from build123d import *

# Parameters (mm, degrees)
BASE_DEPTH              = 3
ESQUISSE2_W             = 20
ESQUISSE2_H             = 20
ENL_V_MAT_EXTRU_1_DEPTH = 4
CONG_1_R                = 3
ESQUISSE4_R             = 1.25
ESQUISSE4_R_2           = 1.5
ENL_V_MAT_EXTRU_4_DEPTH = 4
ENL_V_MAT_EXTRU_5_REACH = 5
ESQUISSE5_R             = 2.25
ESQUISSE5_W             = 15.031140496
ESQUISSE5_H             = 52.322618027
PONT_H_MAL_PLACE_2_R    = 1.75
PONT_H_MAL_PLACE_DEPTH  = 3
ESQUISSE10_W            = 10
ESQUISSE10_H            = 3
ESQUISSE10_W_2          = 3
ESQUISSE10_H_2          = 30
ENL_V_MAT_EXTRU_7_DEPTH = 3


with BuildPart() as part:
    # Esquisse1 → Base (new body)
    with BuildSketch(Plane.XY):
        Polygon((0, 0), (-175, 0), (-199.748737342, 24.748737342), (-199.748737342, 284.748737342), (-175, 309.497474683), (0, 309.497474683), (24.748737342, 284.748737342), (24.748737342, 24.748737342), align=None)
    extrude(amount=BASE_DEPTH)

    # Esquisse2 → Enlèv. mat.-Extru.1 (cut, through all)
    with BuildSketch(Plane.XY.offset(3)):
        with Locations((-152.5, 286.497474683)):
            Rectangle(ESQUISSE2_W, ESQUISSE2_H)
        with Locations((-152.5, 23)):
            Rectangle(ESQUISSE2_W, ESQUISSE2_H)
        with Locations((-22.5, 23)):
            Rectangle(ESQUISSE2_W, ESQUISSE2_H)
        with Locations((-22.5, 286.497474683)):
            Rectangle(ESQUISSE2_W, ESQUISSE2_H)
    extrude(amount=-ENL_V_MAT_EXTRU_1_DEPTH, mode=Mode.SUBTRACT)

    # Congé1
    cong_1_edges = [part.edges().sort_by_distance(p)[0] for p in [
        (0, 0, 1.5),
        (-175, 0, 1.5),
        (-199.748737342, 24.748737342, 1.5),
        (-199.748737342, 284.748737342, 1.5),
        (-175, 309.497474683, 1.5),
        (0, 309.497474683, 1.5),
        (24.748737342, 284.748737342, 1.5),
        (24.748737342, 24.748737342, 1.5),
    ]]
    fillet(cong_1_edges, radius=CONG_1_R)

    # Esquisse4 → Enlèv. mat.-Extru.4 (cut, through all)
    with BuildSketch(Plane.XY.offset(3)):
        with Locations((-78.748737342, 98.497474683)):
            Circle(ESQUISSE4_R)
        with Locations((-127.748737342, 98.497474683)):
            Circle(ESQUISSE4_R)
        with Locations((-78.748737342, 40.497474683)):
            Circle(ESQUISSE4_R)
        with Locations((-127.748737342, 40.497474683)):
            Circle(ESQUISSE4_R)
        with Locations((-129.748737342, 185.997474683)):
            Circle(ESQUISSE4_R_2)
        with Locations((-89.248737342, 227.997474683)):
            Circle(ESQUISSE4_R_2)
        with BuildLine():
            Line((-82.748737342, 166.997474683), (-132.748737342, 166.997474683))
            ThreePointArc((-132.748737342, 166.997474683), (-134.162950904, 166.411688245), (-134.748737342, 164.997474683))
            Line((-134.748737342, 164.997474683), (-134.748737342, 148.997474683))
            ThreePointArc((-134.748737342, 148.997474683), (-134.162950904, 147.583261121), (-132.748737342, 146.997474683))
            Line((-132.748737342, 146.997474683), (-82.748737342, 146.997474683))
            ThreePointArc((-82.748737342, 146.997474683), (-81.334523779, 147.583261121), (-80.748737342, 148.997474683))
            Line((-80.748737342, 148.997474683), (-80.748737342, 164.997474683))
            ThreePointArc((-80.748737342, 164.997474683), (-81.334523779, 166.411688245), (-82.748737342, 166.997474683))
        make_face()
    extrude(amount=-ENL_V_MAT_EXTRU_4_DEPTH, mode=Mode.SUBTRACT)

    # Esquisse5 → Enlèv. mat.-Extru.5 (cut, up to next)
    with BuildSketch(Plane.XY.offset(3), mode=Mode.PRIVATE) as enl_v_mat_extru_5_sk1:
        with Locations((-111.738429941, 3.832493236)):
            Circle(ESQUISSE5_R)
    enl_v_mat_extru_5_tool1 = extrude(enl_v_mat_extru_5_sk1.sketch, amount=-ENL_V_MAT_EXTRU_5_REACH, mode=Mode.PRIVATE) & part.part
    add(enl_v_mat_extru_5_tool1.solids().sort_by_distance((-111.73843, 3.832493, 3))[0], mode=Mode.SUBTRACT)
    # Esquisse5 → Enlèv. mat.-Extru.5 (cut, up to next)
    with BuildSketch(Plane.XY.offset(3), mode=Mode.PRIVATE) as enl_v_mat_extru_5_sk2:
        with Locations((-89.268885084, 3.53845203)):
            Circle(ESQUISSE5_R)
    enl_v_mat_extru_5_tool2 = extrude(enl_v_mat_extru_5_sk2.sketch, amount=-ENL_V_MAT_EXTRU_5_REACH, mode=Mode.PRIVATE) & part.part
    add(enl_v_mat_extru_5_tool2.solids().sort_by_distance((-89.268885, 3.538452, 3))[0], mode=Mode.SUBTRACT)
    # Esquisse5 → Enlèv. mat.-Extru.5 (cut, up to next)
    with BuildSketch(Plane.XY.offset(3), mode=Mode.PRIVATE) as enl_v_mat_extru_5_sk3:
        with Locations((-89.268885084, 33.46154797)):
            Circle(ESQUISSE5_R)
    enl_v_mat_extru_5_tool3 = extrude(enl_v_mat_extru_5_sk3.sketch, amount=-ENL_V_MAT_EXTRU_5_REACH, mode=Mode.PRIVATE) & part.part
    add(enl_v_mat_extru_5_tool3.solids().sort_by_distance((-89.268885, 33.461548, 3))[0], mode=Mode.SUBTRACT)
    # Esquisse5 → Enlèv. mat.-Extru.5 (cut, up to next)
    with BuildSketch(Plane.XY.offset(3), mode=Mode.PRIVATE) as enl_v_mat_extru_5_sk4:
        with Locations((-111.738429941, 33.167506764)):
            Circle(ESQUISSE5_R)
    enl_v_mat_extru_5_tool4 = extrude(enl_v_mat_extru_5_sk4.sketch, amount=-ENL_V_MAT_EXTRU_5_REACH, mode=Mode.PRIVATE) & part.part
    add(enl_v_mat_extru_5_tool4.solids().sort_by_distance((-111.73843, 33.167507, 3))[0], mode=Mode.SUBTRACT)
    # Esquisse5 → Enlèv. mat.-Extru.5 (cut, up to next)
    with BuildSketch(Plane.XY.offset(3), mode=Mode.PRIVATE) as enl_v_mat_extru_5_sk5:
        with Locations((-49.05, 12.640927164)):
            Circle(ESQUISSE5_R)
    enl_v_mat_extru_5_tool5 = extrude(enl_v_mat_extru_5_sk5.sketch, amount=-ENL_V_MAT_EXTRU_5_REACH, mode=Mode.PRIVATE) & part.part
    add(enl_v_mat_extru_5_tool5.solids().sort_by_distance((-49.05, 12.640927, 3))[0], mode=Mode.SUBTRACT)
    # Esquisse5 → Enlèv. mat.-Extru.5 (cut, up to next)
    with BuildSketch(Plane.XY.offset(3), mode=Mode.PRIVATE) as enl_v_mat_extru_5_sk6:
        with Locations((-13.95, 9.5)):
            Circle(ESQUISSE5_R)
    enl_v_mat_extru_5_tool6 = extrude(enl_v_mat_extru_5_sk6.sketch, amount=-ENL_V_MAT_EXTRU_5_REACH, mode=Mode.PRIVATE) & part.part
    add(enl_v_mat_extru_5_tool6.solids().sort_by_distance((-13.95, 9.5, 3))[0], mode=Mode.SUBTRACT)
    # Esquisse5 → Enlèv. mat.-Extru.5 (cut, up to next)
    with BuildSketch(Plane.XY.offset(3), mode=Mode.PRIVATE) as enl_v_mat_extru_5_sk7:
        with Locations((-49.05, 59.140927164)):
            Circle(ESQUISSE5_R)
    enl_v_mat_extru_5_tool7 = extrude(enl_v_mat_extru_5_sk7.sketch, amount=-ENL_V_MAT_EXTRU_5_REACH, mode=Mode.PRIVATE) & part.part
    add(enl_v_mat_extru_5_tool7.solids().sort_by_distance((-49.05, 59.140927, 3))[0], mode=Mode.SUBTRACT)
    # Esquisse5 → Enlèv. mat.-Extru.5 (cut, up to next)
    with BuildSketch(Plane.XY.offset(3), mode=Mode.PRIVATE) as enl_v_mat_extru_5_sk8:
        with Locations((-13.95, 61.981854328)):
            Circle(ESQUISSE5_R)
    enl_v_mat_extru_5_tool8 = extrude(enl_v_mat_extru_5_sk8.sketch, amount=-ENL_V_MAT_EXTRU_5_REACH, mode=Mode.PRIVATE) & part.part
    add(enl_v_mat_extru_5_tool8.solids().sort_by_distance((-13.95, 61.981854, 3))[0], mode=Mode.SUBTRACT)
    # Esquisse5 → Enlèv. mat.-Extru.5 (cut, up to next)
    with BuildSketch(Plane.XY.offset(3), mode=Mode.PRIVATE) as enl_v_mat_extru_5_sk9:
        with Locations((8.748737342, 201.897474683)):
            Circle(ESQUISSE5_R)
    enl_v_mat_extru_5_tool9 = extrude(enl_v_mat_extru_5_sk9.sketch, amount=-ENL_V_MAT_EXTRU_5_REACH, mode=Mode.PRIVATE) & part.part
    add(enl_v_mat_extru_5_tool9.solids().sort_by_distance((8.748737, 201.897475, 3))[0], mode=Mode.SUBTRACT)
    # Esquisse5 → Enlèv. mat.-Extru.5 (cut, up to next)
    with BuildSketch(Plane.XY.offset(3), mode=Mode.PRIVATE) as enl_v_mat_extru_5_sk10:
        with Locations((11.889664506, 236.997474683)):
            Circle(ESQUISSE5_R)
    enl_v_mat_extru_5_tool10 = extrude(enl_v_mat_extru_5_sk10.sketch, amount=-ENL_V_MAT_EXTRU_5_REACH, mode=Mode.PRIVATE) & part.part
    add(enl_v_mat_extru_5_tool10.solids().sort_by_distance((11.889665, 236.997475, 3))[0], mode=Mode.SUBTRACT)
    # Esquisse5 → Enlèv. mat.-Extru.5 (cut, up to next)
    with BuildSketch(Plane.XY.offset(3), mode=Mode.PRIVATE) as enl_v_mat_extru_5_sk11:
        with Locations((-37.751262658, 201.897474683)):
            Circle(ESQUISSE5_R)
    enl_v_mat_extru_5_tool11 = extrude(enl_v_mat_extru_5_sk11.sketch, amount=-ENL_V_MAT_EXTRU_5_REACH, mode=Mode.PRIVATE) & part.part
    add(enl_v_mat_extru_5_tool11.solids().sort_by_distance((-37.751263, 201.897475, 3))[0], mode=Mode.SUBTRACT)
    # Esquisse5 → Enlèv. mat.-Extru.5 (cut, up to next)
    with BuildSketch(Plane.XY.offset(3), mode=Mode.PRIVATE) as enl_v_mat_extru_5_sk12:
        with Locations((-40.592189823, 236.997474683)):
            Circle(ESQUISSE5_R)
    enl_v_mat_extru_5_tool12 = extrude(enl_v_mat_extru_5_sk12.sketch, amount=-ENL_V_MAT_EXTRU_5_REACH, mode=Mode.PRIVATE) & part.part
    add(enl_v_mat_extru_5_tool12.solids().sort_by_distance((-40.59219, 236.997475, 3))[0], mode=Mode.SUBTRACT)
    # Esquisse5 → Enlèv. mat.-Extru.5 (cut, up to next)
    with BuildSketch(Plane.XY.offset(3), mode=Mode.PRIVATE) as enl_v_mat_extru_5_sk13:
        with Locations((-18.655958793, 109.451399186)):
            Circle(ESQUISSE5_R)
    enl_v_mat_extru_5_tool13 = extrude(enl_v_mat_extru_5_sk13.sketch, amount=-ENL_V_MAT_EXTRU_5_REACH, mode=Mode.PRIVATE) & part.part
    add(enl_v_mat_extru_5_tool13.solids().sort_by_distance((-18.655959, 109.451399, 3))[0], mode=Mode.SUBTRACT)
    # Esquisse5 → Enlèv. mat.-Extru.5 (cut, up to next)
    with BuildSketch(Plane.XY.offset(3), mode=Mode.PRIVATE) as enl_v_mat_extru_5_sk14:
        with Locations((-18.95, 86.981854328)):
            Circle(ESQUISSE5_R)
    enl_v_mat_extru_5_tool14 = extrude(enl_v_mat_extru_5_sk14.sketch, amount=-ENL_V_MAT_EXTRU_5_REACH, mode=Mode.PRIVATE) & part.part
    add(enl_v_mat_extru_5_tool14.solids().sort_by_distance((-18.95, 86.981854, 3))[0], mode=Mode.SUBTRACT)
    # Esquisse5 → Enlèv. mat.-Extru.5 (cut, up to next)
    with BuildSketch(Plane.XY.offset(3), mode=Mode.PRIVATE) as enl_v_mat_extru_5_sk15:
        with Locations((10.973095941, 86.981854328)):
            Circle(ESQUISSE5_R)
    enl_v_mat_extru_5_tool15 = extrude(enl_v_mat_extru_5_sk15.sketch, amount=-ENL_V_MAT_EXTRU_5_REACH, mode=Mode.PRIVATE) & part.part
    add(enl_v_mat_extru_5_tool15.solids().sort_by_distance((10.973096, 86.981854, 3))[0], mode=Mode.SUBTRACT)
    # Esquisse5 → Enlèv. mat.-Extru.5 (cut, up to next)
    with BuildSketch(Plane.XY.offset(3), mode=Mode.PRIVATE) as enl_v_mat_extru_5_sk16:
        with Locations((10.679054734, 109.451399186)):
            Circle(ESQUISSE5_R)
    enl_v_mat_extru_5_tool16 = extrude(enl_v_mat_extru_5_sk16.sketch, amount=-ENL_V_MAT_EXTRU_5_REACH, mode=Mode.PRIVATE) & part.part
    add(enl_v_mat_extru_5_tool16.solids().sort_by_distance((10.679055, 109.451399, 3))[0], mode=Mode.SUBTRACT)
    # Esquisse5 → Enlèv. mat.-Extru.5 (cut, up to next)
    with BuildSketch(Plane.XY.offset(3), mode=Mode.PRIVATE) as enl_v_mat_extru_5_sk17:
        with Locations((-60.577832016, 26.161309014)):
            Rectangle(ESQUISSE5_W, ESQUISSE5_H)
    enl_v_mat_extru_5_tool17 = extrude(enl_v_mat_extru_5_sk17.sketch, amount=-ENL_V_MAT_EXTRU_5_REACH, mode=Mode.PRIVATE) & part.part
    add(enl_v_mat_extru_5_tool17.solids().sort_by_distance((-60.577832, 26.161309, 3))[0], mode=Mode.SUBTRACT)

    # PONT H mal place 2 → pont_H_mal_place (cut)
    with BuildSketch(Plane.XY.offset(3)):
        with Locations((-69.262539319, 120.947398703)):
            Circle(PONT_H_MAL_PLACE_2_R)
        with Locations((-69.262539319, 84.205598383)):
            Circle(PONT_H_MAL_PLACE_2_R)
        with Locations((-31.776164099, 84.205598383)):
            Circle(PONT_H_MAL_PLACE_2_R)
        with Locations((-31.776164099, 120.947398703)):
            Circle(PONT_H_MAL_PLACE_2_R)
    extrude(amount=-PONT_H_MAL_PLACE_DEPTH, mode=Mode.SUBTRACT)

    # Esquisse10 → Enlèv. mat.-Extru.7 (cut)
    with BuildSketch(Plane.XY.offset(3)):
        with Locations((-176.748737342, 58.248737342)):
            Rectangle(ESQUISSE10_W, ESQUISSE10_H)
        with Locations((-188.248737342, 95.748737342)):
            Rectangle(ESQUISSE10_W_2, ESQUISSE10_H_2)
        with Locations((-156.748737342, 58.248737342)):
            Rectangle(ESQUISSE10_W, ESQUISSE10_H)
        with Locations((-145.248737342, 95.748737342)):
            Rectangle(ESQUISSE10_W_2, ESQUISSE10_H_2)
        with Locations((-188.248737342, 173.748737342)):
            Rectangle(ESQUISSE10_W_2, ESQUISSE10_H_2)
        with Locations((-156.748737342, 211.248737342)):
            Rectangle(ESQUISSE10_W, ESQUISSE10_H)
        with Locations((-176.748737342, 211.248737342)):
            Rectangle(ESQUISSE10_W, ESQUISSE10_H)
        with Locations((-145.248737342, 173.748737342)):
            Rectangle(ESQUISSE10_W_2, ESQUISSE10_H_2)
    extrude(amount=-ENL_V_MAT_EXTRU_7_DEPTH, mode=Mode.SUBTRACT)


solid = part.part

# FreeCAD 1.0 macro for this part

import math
import FreeCAD as App
import Part
import Sketcher
from FreeCAD import Vector
Q = App.Units.Quantity


def edges_at(feature, points):
    """Names of the edges that pass closest to the given points."""
    edges = feature.Shape.Edges
    near = lambda p: min(range(len(edges)), key=lambda i: edges[i].distToShape(Part.Vertex(*p))[0])
    return sorted({f"Edge{near(p) + 1}" for p in points})

doc = App.newDocument("Part")
params = doc.addObject("Spreadsheet::Sheet", "Params")
for row, (alias, value) in enumerate([
    ("sketch1_width", "175 mm"),
    ("sketch1_height", "260 mm"),
    ("sketch1_length", "35 mm"),
    ("pad1_length", "3 mm"),
    ("sketch2_width", "20 mm"),
    ("fillet_radius", "3 mm"),
    ("sketch3_diameter", "3 mm"),
    ("sketch3_radius", "2 mm"),
    ("sketch3_diameter2", "2.5 mm"),
    ("sketch3_width", "50 mm"),
    ("sketch3_height", "16 mm"),
    ("sketch4_diameter", "4.5 mm"),
    ("sketch5_diameter", "4.5 mm"),
    ("sketch6_diameter", "4.5 mm"),
    ("sketch7_diameter", "4.5 mm"),
    ("sketch8_diameter", "4.5 mm"),
    ("sketch9_diameter", "4.5 mm"),
    ("sketch10_diameter", "4.5 mm"),
    ("sketch11_diameter", "4.5 mm"),
    ("sketch12_diameter", "4.5 mm"),
    ("sketch13_diameter", "4.5 mm"),
    ("sketch14_diameter", "4.5 mm"),
    ("sketch15_diameter", "4.5 mm"),
    ("sketch16_diameter", "4.5 mm"),
    ("sketch17_diameter", "4.5 mm"),
    ("sketch18_diameter", "4.5 mm"),
    ("sketch19_diameter", "4.5 mm"),
    ("sketch21_diameter", "3.5 mm"),
    ("pocket20_length", "3 mm"),
    ("sketch22_width", "10 mm"),
    ("sketch22_width2", "3 mm"),
    ("sketch22_height", "30 mm"),
    ("pocket21_length", "3 mm"),
], start=1):
    params.set(f"A{row}", alias)
    params.set(f"B{row}", "=" + value)
    params.setAlias(f"B{row}", alias)

body = doc.addObject("PartDesign::Body", "Body")

# Sketch on XY plane
sketch1 = body.newObject("Sketcher::SketchObject", "Sketch")
sketch1.AttachmentSupport = (doc.getObject("XY_Plane"), [""])
sketch1.MapMode = "FlatFace"
sketch1.addGeometry([
    Part.LineSegment(Vector(-175, 0, 0), Vector(0, 0, 0)),  # 0
    Part.LineSegment(Vector(0, 0, 0), Vector(25, 25, 0)),  # 1
    Part.LineSegment(Vector(25, 25, 0), Vector(25, 285, 0)),  # 2
    Part.LineSegment(Vector(25, 285, 0), Vector(0, 309, 0)),  # 3
    Part.LineSegment(Vector(0, 309, 0), Vector(-175, 309, 0)),  # 4
    Part.LineSegment(Vector(-175, 309, 0), Vector(-200, 285, 0)),  # 5
    Part.LineSegment(Vector(-200, 285, 0), Vector(-200, 25, 0)),  # 6
    Part.LineSegment(Vector(-200, 25, 0), Vector(-175, 0, 0)),  # 7
], False)
sketch1.addConstraint([
    Sketcher.Constraint("Coincident", 0, 2, 1, 1),
    Sketcher.Constraint("Coincident", 1, 2, 2, 1),
    Sketcher.Constraint("Coincident", 2, 2, 3, 1),
    Sketcher.Constraint("Coincident", 3, 2, 4, 1),
    Sketcher.Constraint("Coincident", 4, 2, 5, 1),
    Sketcher.Constraint("Coincident", 5, 2, 6, 1),
    Sketcher.Constraint("Coincident", 6, 2, 7, 1),
    Sketcher.Constraint("Coincident", 7, 2, 0, 1),
    Sketcher.Constraint("Horizontal", 0),
    Sketcher.Constraint("Vertical", 2),
    Sketcher.Constraint("Horizontal", 4),
    Sketcher.Constraint("Vertical", 6),
    Sketcher.Constraint("Coincident", 0, 2, -1, 1),
    Sketcher.Constraint("PointOnObject", 3, 2, -2),
    Sketcher.Constraint("Perpendicular", 1, 3),
    Sketcher.Constraint("Perpendicular", 3, 5),
    Sketcher.Constraint("Perpendicular", 5, 7),
    Sketcher.Constraint("Horizontal", 2, 2, 5, 2),
    Sketcher.Constraint("Horizontal", 1, 2, 6, 2),
    Sketcher.Constraint("Vertical", 4, 2, 7, 2),
    Sketcher.Constraint("DistanceX", 0, 1, 0, 2, Q("175 mm")),
    Sketcher.Constraint("DistanceY", 2, 1, 2, 2, Q("260 mm")),
    Sketcher.Constraint("Distance", 1, Q("35 mm")),
])
sketch1.setExpression("Constraints[20]", "Params.sketch1_width")
sketch1.setExpression("Constraints[21]", "Params.sketch1_height")
sketch1.setExpression("Constraints[22]", "Params.sketch1_length")
pad1 = body.newObject("PartDesign::Pad", "Pad")
pad1.Profile = sketch1
pad1.setExpression("Length", "Params.pad1_length")

# Sketch on XY plane
sketch2 = body.newObject("Sketcher::SketchObject", "Sketch001")
sketch2.AttachmentSupport = (doc.getObject("XY_Plane"), [""])
sketch2.MapMode = "FlatFace"
sketch2.AttachmentOffset = App.Placement(Vector(0, 0, 3), App.Rotation())
sketch2.addGeometry([
    Part.LineSegment(Vector(-162, 296, 0), Vector(-162, 276, 0)),  # 0
    Part.LineSegment(Vector(-162, 276, 0), Vector(-142, 276, 0)),  # 1
    Part.LineSegment(Vector(-142, 276, 0), Vector(-142, 296, 0)),  # 2
    Part.LineSegment(Vector(-142, 296, 0), Vector(-162, 296, 0)),  # 3
    Part.LineSegment(Vector(-162, 33, 0), Vector(-162, 13, 0)),  # 4
    Part.LineSegment(Vector(-162, 13, 0), Vector(-142, 13, 0)),  # 5
    Part.LineSegment(Vector(-142, 13, 0), Vector(-142, 33, 0)),  # 6
    Part.LineSegment(Vector(-142, 33, 0), Vector(-162, 33, 0)),  # 7
    Part.LineSegment(Vector(-32, 33, 0), Vector(-32, 13, 0)),  # 8
    Part.LineSegment(Vector(-32, 13, 0), Vector(-12, 13, 0)),  # 9
    Part.LineSegment(Vector(-12, 13, 0), Vector(-12, 33, 0)),  # 10
    Part.LineSegment(Vector(-12, 33, 0), Vector(-32, 33, 0)),  # 11
    Part.LineSegment(Vector(-32, 296, 0), Vector(-32, 276, 0)),  # 12
    Part.LineSegment(Vector(-32, 276, 0), Vector(-12, 276, 0)),  # 13
    Part.LineSegment(Vector(-12, 276, 0), Vector(-12, 296, 0)),  # 14
    Part.LineSegment(Vector(-12, 296, 0), Vector(-32, 296, 0)),  # 15
], False)
sketch2.addConstraint([
    Sketcher.Constraint("Coincident", 0, 2, 1, 1),
    Sketcher.Constraint("Coincident", 1, 2, 2, 1),
    Sketcher.Constraint("Coincident", 2, 2, 3, 1),
    Sketcher.Constraint("Coincident", 3, 2, 0, 1),
    Sketcher.Constraint("Coincident", 4, 2, 5, 1),
    Sketcher.Constraint("Coincident", 5, 2, 6, 1),
    Sketcher.Constraint("Coincident", 6, 2, 7, 1),
    Sketcher.Constraint("Coincident", 7, 2, 4, 1),
    Sketcher.Constraint("Coincident", 8, 2, 9, 1),
    Sketcher.Constraint("Coincident", 9, 2, 10, 1),
    Sketcher.Constraint("Coincident", 10, 2, 11, 1),
    Sketcher.Constraint("Coincident", 11, 2, 8, 1),
    Sketcher.Constraint("Coincident", 12, 2, 13, 1),
    Sketcher.Constraint("Coincident", 13, 2, 14, 1),
    Sketcher.Constraint("Coincident", 14, 2, 15, 1),
    Sketcher.Constraint("Coincident", 15, 2, 12, 1),
    Sketcher.Constraint("Vertical", 0),
    Sketcher.Constraint("Horizontal", 1),
    Sketcher.Constraint("Vertical", 2),
    Sketcher.Constraint("Horizontal", 3),
    Sketcher.Constraint("Vertical", 4),
    Sketcher.Constraint("Horizontal", 5),
    Sketcher.Constraint("Vertical", 6),
    Sketcher.Constraint("Horizontal", 7),
    Sketcher.Constraint("Vertical", 8),
    Sketcher.Constraint("Horizontal", 9),
    Sketcher.Constraint("Vertical", 10),
    Sketcher.Constraint("Horizontal", 11),
    Sketcher.Constraint("Vertical", 12),
    Sketcher.Constraint("Horizontal", 13),
    Sketcher.Constraint("Vertical", 14),
    Sketcher.Constraint("Horizontal", 15),
    Sketcher.Constraint("Horizontal", 5, 2, 8, 2),
    Sketcher.Constraint("Horizontal", 7, 2, 10, 2),
    Sketcher.Constraint("Horizontal", 1, 2, 12, 2),
    Sketcher.Constraint("Horizontal", 3, 2, 14, 2),
    Sketcher.Constraint("Vertical", 3, 2, 4, 2),
    Sketcher.Constraint("Vertical", 2, 2, 5, 2),
    Sketcher.Constraint("Vertical", 11, 2, 12, 2),
    Sketcher.Constraint("Vertical", 10, 2, 13, 2),
    Sketcher.Constraint("Equal", 7, 9),
    Sketcher.Constraint("Equal", 15, 0),
    Sketcher.Constraint("Equal", 2, 4),
    Sketcher.Constraint("DistanceX", 1, 1, 1, 2, Q("20 mm")),
    Sketcher.Constraint("DistanceY", -1, 1, 4, 2, Q("13 mm")),
    Sketcher.Constraint("DistanceX", 5, 2, 8, 2, Q("110 mm")),
    Sketcher.Constraint("DistanceX", 0, 2, -1, 1, Q("162.5 mm")),
    Sketcher.Constraint("DistanceY", -1, 1, 0, 2, Q("276.497475 mm")),
])
sketch2.setExpression("Constraints[43]", "Params.sketch2_width")
pocket1 = body.newObject("PartDesign::Pocket", "Pocket")
pocket1.Profile = sketch2
pocket1.Type = "ThroughAll"
doc.recompute()

fillet = body.newObject("PartDesign::Fillet", "Fillet")
fillet.Base = (pocket1, edges_at(pocket1, [
    (0, 0, 1.5),
    (-175, 0, 1.5),
    (-199.749, 24.749, 1.5),
    (-199.749, 284.749, 1.5),
    (-175, 309.497, 1.5),
    (0, 309.497, 1.5),
    (24.749, 284.749, 1.5),
    (24.749, 24.749, 1.5),
]))
fillet.setExpression("Radius", "Params.fillet_radius")

# Sketch on XY plane
sketch3 = body.newObject("Sketcher::SketchObject", "Sketch002")
sketch3.AttachmentSupport = (doc.getObject("XY_Plane"), [""])
sketch3.MapMode = "FlatFace"
sketch3.AttachmentOffset = App.Placement(Vector(0, 0, 3), App.Rotation())
sketch3.addGeometry([
    Part.Circle(Vector(-78.7, 98.5, 0), Vector(0, 0, 1), 1.2),  # 0
    Part.Circle(Vector(-127.7, 98.5, 0), Vector(0, 0, 1), 1.2),  # 1
    Part.Circle(Vector(-78.7, 40.5, 0), Vector(0, 0, 1), 1.2),  # 2
    Part.Circle(Vector(-127.7, 40.5, 0), Vector(0, 0, 1), 1.2),  # 3
    Part.Circle(Vector(-129.7, 186, 0), Vector(0, 0, 1), 1.5),  # 4
    Part.Circle(Vector(-89.2, 228, 0), Vector(0, 0, 1), 1.5),  # 5
    Part.LineSegment(Vector(-82.7, 167, 0), Vector(-132.7, 167, 0)),  # 6
    Part.ArcOfCircle(Part.Circle(Vector(-132.7, 165, 0), Vector(0, 0, 1), 2), math.radians(90), math.radians(180)),  # 7
    Part.LineSegment(Vector(-134.7, 165, 0), Vector(-134.7, 149, 0)),  # 8
    Part.ArcOfCircle(Part.Circle(Vector(-132.7, 149, 0), Vector(0, 0, 1), 2), math.radians(-180), math.radians(-90)),  # 9
    Part.LineSegment(Vector(-132.7, 147, 0), Vector(-82.7, 147, 0)),  # 10
    Part.ArcOfCircle(Part.Circle(Vector(-82.7, 149, 0), Vector(0, 0, 1), 2), math.radians(-90), math.radians(0)),  # 11
    Part.LineSegment(Vector(-80.7, 149, 0), Vector(-80.7, 165, 0)),  # 12
    Part.ArcOfCircle(Part.Circle(Vector(-82.7, 165, 0), Vector(0, 0, 1), 2), math.radians(0), math.radians(90)),  # 13
], False)
sketch3.addConstraint([
    Sketcher.Constraint("Tangent", 6, 2, 7, 1),
    Sketcher.Constraint("Tangent", 7, 2, 8, 1),
    Sketcher.Constraint("Tangent", 8, 2, 9, 1),
    Sketcher.Constraint("Tangent", 9, 2, 10, 1),
    Sketcher.Constraint("Tangent", 10, 2, 11, 1),
    Sketcher.Constraint("Tangent", 11, 2, 12, 1),
    Sketcher.Constraint("Tangent", 12, 2, 13, 1),
    Sketcher.Constraint("Tangent", 13, 2, 6, 1),
    Sketcher.Constraint("Horizontal", 6),
    Sketcher.Constraint("Vertical", 8),
    Sketcher.Constraint("Horizontal", 10),
    Sketcher.Constraint("Vertical", 12),
    Sketcher.Constraint("Equal", 0, 1),
    Sketcher.Constraint("Equal", 1, 2),
    Sketcher.Constraint("Equal", 2, 3),
    Sketcher.Constraint("Equal", 4, 5),
    Sketcher.Constraint("Equal", 7, 9),
    Sketcher.Constraint("Equal", 9, 11),
    Sketcher.Constraint("Equal", 11, 13),
    Sketcher.Constraint("Horizontal", 0, 3, 1, 3),
    Sketcher.Constraint("Horizontal", 2, 3, 3, 3),
    Sketcher.Constraint("Vertical", 0, 3, 2, 3),
    Sketcher.Constraint("Vertical", 1, 3, 3, 3),
    Sketcher.Constraint("Diameter", 4, Q("3 mm")),
    Sketcher.Constraint("Radius", 7, Q("2 mm")),
    Sketcher.Constraint("Diameter", 0, Q("2.5 mm")),
    Sketcher.Constraint("DistanceX", 6, 2, 6, 1, Q("50 mm")),
    Sketcher.Constraint("DistanceY", 8, 2, 8, 1, Q("16 mm")),
    Sketcher.Constraint("DistanceX", 1, 3, 0, 3, Q("49 mm")),
    Sketcher.Constraint("DistanceY", 2, 3, 0, 3, Q("58 mm")),
    Sketcher.Constraint("DistanceX", 4, 3, 1, 3, Q("2 mm")),
    Sketcher.Constraint("DistanceY", 4, 3, 5, 3, Q("42 mm")),
    Sketcher.Constraint("DistanceX", 7, 3, 4, 3, Q("3 mm")),
    Sketcher.Constraint("DistanceY", 7, 3, 4, 3, Q("21 mm")),
    Sketcher.Constraint("DistanceY", 1, 3, 4, 3, Q("87.5 mm")),
    Sketcher.Constraint("DistanceX", 4, 3, 5, 3, Q("40.5 mm")),
    Sketcher.Constraint("DistanceX", 0, 3, -1, 1, Q("78.748737 mm")),
    Sketcher.Constraint("DistanceY", -1, 1, 0, 3, Q("98.497475 mm")),
])
sketch3.setExpression("Constraints[23]", "Params.sketch3_diameter")
sketch3.setExpression("Constraints[24]", "Params.sketch3_radius")
sketch3.setExpression("Constraints[25]", "Params.sketch3_diameter2")
sketch3.setExpression("Constraints[26]", "Params.sketch3_width")
sketch3.setExpression("Constraints[27]", "Params.sketch3_height")
pocket2 = body.newObject("PartDesign::Pocket", "Pocket001")
pocket2.Profile = sketch3
pocket2.Type = "ThroughAll"

# Sketch on XY plane
sketch4 = body.newObject("Sketcher::SketchObject", "Sketch003")
sketch4.AttachmentSupport = (doc.getObject("XY_Plane"), [""])
sketch4.MapMode = "FlatFace"
sketch4.AttachmentOffset = App.Placement(Vector(0, 0, 3), App.Rotation())
sketch4.addGeometry(Part.Circle(Vector(-111.7, 3.8, 0), Vector(0, 0, 1), 2.2), False)
sketch4.addConstraint([
    Sketcher.Constraint("Diameter", 0, Q("4.5 mm")),
    Sketcher.Constraint("DistanceX", 0, 3, -1, 1, Q("111.73843 mm")),
    Sketcher.Constraint("DistanceY", -1, 1, 0, 3, Q("3.832493 mm")),
])
sketch4.setExpression("Constraints[0]", "Params.sketch4_diameter")
pocket3 = body.newObject("PartDesign::Pocket", "Pocket002")
pocket3.Profile = sketch4
pocket3.Type = "UpToFirst"

# Sketch on XY plane
sketch5 = body.newObject("Sketcher::SketchObject", "Sketch004")
sketch5.AttachmentSupport = (doc.getObject("XY_Plane"), [""])
sketch5.MapMode = "FlatFace"
sketch5.AttachmentOffset = App.Placement(Vector(0, 0, 3), App.Rotation())
sketch5.addGeometry(Part.Circle(Vector(-89.3, 3.5, 0), Vector(0, 0, 1), 2.2), False)
sketch5.addConstraint([
    Sketcher.Constraint("Diameter", 0, Q("4.5 mm")),
    Sketcher.Constraint("DistanceX", 0, 3, -1, 1, Q("89.268885 mm")),
    Sketcher.Constraint("DistanceY", -1, 1, 0, 3, Q("3.538452 mm")),
])
sketch5.setExpression("Constraints[0]", "Params.sketch5_diameter")
pocket4 = body.newObject("PartDesign::Pocket", "Pocket003")
pocket4.Profile = sketch5
pocket4.Type = "UpToFirst"

# Sketch on XY plane
sketch6 = body.newObject("Sketcher::SketchObject", "Sketch005")
sketch6.AttachmentSupport = (doc.getObject("XY_Plane"), [""])
sketch6.MapMode = "FlatFace"
sketch6.AttachmentOffset = App.Placement(Vector(0, 0, 3), App.Rotation())
sketch6.addGeometry(Part.Circle(Vector(-89.3, 33.5, 0), Vector(0, 0, 1), 2.2), False)
sketch6.addConstraint([
    Sketcher.Constraint("Diameter", 0, Q("4.5 mm")),
    Sketcher.Constraint("DistanceX", 0, 3, -1, 1, Q("89.268885 mm")),
    Sketcher.Constraint("DistanceY", -1, 1, 0, 3, Q("33.461548 mm")),
])
sketch6.setExpression("Constraints[0]", "Params.sketch6_diameter")
pocket5 = body.newObject("PartDesign::Pocket", "Pocket004")
pocket5.Profile = sketch6
pocket5.Type = "UpToFirst"

# Sketch on XY plane
sketch7 = body.newObject("Sketcher::SketchObject", "Sketch006")
sketch7.AttachmentSupport = (doc.getObject("XY_Plane"), [""])
sketch7.MapMode = "FlatFace"
sketch7.AttachmentOffset = App.Placement(Vector(0, 0, 3), App.Rotation())
sketch7.addGeometry(Part.Circle(Vector(-111.7, 33.2, 0), Vector(0, 0, 1), 2.2), False)
sketch7.addConstraint([
    Sketcher.Constraint("Diameter", 0, Q("4.5 mm")),
    Sketcher.Constraint("DistanceX", 0, 3, -1, 1, Q("111.73843 mm")),
    Sketcher.Constraint("DistanceY", -1, 1, 0, 3, Q("33.167507 mm")),
])
sketch7.setExpression("Constraints[0]", "Params.sketch7_diameter")
pocket6 = body.newObject("PartDesign::Pocket", "Pocket005")
pocket6.Profile = sketch7
pocket6.Type = "UpToFirst"

# Sketch on XY plane
sketch8 = body.newObject("Sketcher::SketchObject", "Sketch007")
sketch8.AttachmentSupport = (doc.getObject("XY_Plane"), [""])
sketch8.MapMode = "FlatFace"
sketch8.AttachmentOffset = App.Placement(Vector(0, 0, 3), App.Rotation())
sketch8.addGeometry(Part.Circle(Vector(-49, 12.6, 0), Vector(0, 0, 1), 2.2), False)
sketch8.addConstraint([
    Sketcher.Constraint("Diameter", 0, Q("4.5 mm")),
    Sketcher.Constraint("DistanceX", 0, 3, -1, 1, Q("49.05 mm")),
    Sketcher.Constraint("DistanceY", -1, 1, 0, 3, Q("12.640927 mm")),
])
sketch8.setExpression("Constraints[0]", "Params.sketch8_diameter")
pocket7 = body.newObject("PartDesign::Pocket", "Pocket006")
pocket7.Profile = sketch8
pocket7.Type = "UpToFirst"

# Sketch on XY plane
sketch9 = body.newObject("Sketcher::SketchObject", "Sketch008")
sketch9.AttachmentSupport = (doc.getObject("XY_Plane"), [""])
sketch9.MapMode = "FlatFace"
sketch9.AttachmentOffset = App.Placement(Vector(0, 0, 3), App.Rotation())
sketch9.addGeometry(Part.Circle(Vector(-13.9, 9.5, 0), Vector(0, 0, 1), 2.2), False)
sketch9.addConstraint([
    Sketcher.Constraint("Diameter", 0, Q("4.5 mm")),
    Sketcher.Constraint("DistanceY", -1, 1, 0, 3, Q("9.5 mm")),
    Sketcher.Constraint("DistanceX", 0, 3, -1, 1, Q("13.95 mm")),
])
sketch9.setExpression("Constraints[0]", "Params.sketch9_diameter")
pocket8 = body.newObject("PartDesign::Pocket", "Pocket007")
pocket8.Profile = sketch9
pocket8.Type = "UpToFirst"

# Sketch on XY plane
sketch10 = body.newObject("Sketcher::SketchObject", "Sketch009")
sketch10.AttachmentSupport = (doc.getObject("XY_Plane"), [""])
sketch10.MapMode = "FlatFace"
sketch10.AttachmentOffset = App.Placement(Vector(0, 0, 3), App.Rotation())
sketch10.addGeometry(Part.Circle(Vector(-49, 59.1, 0), Vector(0, 0, 1), 2.2), False)
sketch10.addConstraint([
    Sketcher.Constraint("Diameter", 0, Q("4.5 mm")),
    Sketcher.Constraint("DistanceX", 0, 3, -1, 1, Q("49.05 mm")),
    Sketcher.Constraint("DistanceY", -1, 1, 0, 3, Q("59.140927 mm")),
])
sketch10.setExpression("Constraints[0]", "Params.sketch10_diameter")
pocket9 = body.newObject("PartDesign::Pocket", "Pocket008")
pocket9.Profile = sketch10
pocket9.Type = "UpToFirst"

# Sketch on XY plane
sketch11 = body.newObject("Sketcher::SketchObject", "Sketch010")
sketch11.AttachmentSupport = (doc.getObject("XY_Plane"), [""])
sketch11.MapMode = "FlatFace"
sketch11.AttachmentOffset = App.Placement(Vector(0, 0, 3), App.Rotation())
sketch11.addGeometry(Part.Circle(Vector(-13.9, 62, 0), Vector(0, 0, 1), 2.2), False)
sketch11.addConstraint([
    Sketcher.Constraint("Diameter", 0, Q("4.5 mm")),
    Sketcher.Constraint("DistanceX", 0, 3, -1, 1, Q("13.95 mm")),
    Sketcher.Constraint("DistanceY", -1, 1, 0, 3, Q("61.981854 mm")),
])
sketch11.setExpression("Constraints[0]", "Params.sketch11_diameter")
pocket10 = body.newObject("PartDesign::Pocket", "Pocket009")
pocket10.Profile = sketch11
pocket10.Type = "UpToFirst"

# Sketch on XY plane
sketch12 = body.newObject("Sketcher::SketchObject", "Sketch011")
sketch12.AttachmentSupport = (doc.getObject("XY_Plane"), [""])
sketch12.MapMode = "FlatFace"
sketch12.AttachmentOffset = App.Placement(Vector(0, 0, 3), App.Rotation())
sketch12.addGeometry(Part.Circle(Vector(8.7, 201.9, 0), Vector(0, 0, 1), 2.2), False)
sketch12.addConstraint([
    Sketcher.Constraint("Diameter", 0, Q("4.5 mm")),
    Sketcher.Constraint("DistanceX", -1, 1, 0, 3, Q("8.748737 mm")),
    Sketcher.Constraint("DistanceY", -1, 1, 0, 3, Q("201.897475 mm")),
])
sketch12.setExpression("Constraints[0]", "Params.sketch12_diameter")
pocket11 = body.newObject("PartDesign::Pocket", "Pocket010")
pocket11.Profile = sketch12
pocket11.Type = "UpToFirst"

# Sketch on XY plane
sketch13 = body.newObject("Sketcher::SketchObject", "Sketch012")
sketch13.AttachmentSupport = (doc.getObject("XY_Plane"), [""])
sketch13.MapMode = "FlatFace"
sketch13.AttachmentOffset = App.Placement(Vector(0, 0, 3), App.Rotation())
sketch13.addGeometry(Part.Circle(Vector(11.9, 237, 0), Vector(0, 0, 1), 2.2), False)
sketch13.addConstraint([
    Sketcher.Constraint("Diameter", 0, Q("4.5 mm")),
    Sketcher.Constraint("DistanceX", -1, 1, 0, 3, Q("11.889665 mm")),
    Sketcher.Constraint("DistanceY", -1, 1, 0, 3, Q("236.997475 mm")),
])
sketch13.setExpression("Constraints[0]", "Params.sketch13_diameter")
pocket12 = body.newObject("PartDesign::Pocket", "Pocket011")
pocket12.Profile = sketch13
pocket12.Type = "UpToFirst"

# Sketch on XY plane
sketch14 = body.newObject("Sketcher::SketchObject", "Sketch013")
sketch14.AttachmentSupport = (doc.getObject("XY_Plane"), [""])
sketch14.MapMode = "FlatFace"
sketch14.AttachmentOffset = App.Placement(Vector(0, 0, 3), App.Rotation())
sketch14.addGeometry(Part.Circle(Vector(-37.8, 201.9, 0), Vector(0, 0, 1), 2.2), False)
sketch14.addConstraint([
    Sketcher.Constraint("Diameter", 0, Q("4.5 mm")),
    Sketcher.Constraint("DistanceX", 0, 3, -1, 1, Q("37.751263 mm")),
    Sketcher.Constraint("DistanceY", -1, 1, 0, 3, Q("201.897475 mm")),
])
sketch14.setExpression("Constraints[0]", "Params.sketch14_diameter")
pocket13 = body.newObject("PartDesign::Pocket", "Pocket012")
pocket13.Profile = sketch14
pocket13.Type = "UpToFirst"

# Sketch on XY plane
sketch15 = body.newObject("Sketcher::SketchObject", "Sketch014")
sketch15.AttachmentSupport = (doc.getObject("XY_Plane"), [""])
sketch15.MapMode = "FlatFace"
sketch15.AttachmentOffset = App.Placement(Vector(0, 0, 3), App.Rotation())
sketch15.addGeometry(Part.Circle(Vector(-40.6, 237, 0), Vector(0, 0, 1), 2.2), False)
sketch15.addConstraint([
    Sketcher.Constraint("Diameter", 0, Q("4.5 mm")),
    Sketcher.Constraint("DistanceX", 0, 3, -1, 1, Q("40.59219 mm")),
    Sketcher.Constraint("DistanceY", -1, 1, 0, 3, Q("236.997475 mm")),
])
sketch15.setExpression("Constraints[0]", "Params.sketch15_diameter")
pocket14 = body.newObject("PartDesign::Pocket", "Pocket013")
pocket14.Profile = sketch15
pocket14.Type = "UpToFirst"

# Sketch on XY plane
sketch16 = body.newObject("Sketcher::SketchObject", "Sketch015")
sketch16.AttachmentSupport = (doc.getObject("XY_Plane"), [""])
sketch16.MapMode = "FlatFace"
sketch16.AttachmentOffset = App.Placement(Vector(0, 0, 3), App.Rotation())
sketch16.addGeometry(Part.Circle(Vector(-18.7, 109.5, 0), Vector(0, 0, 1), 2.2), False)
sketch16.addConstraint([
    Sketcher.Constraint("Diameter", 0, Q("4.5 mm")),
    Sketcher.Constraint("DistanceY", -1, 1, 0, 3, Q("109.451399 mm")),
    Sketcher.Constraint("DistanceX", 0, 3, -1, 1, Q("18.655959 mm")),
])
sketch16.setExpression("Constraints[0]", "Params.sketch16_diameter")
pocket15 = body.newObject("PartDesign::Pocket", "Pocket014")
pocket15.Profile = sketch16
pocket15.Type = "UpToFirst"

# Sketch on XY plane
sketch17 = body.newObject("Sketcher::SketchObject", "Sketch016")
sketch17.AttachmentSupport = (doc.getObject("XY_Plane"), [""])
sketch17.MapMode = "FlatFace"
sketch17.AttachmentOffset = App.Placement(Vector(0, 0, 3), App.Rotation())
sketch17.addGeometry(Part.Circle(Vector(-18.9, 87, 0), Vector(0, 0, 1), 2.2), False)
sketch17.addConstraint([
    Sketcher.Constraint("Diameter", 0, Q("4.5 mm")),
    Sketcher.Constraint("DistanceX", 0, 3, -1, 1, Q("18.95 mm")),
    Sketcher.Constraint("DistanceY", -1, 1, 0, 3, Q("86.981854 mm")),
])
sketch17.setExpression("Constraints[0]", "Params.sketch17_diameter")
pocket16 = body.newObject("PartDesign::Pocket", "Pocket015")
pocket16.Profile = sketch17
pocket16.Type = "UpToFirst"

# Sketch on XY plane
sketch18 = body.newObject("Sketcher::SketchObject", "Sketch017")
sketch18.AttachmentSupport = (doc.getObject("XY_Plane"), [""])
sketch18.MapMode = "FlatFace"
sketch18.AttachmentOffset = App.Placement(Vector(0, 0, 3), App.Rotation())
sketch18.addGeometry(Part.Circle(Vector(11, 87, 0), Vector(0, 0, 1), 2.2), False)
sketch18.addConstraint([
    Sketcher.Constraint("Diameter", 0, Q("4.5 mm")),
    Sketcher.Constraint("DistanceX", -1, 1, 0, 3, Q("10.973096 mm")),
    Sketcher.Constraint("DistanceY", -1, 1, 0, 3, Q("86.981854 mm")),
])
sketch18.setExpression("Constraints[0]", "Params.sketch18_diameter")
pocket17 = body.newObject("PartDesign::Pocket", "Pocket016")
pocket17.Profile = sketch18
pocket17.Type = "UpToFirst"

# Sketch on XY plane
sketch19 = body.newObject("Sketcher::SketchObject", "Sketch018")
sketch19.AttachmentSupport = (doc.getObject("XY_Plane"), [""])
sketch19.MapMode = "FlatFace"
sketch19.AttachmentOffset = App.Placement(Vector(0, 0, 3), App.Rotation())
sketch19.addGeometry(Part.Circle(Vector(10.7, 109.5, 0), Vector(0, 0, 1), 2.2), False)
sketch19.addConstraint([
    Sketcher.Constraint("Diameter", 0, Q("4.5 mm")),
    Sketcher.Constraint("DistanceY", -1, 1, 0, 3, Q("109.451399 mm")),
    Sketcher.Constraint("DistanceX", -1, 1, 0, 3, Q("10.679055 mm")),
])
sketch19.setExpression("Constraints[0]", "Params.sketch19_diameter")
pocket18 = body.newObject("PartDesign::Pocket", "Pocket017")
pocket18.Profile = sketch19
pocket18.Type = "UpToFirst"

# Sketch on XY plane
sketch20 = body.newObject("Sketcher::SketchObject", "Sketch019")
sketch20.AttachmentSupport = (doc.getObject("XY_Plane"), [""])
sketch20.MapMode = "FlatFace"
sketch20.AttachmentOffset = App.Placement(Vector(0, 0, 3), App.Rotation())
sketch20.addGeometry([
    Part.LineSegment(Vector(-68, 52, 0), Vector(-68, 0, 0)),
    Part.LineSegment(Vector(-68, 0, 0), Vector(-53, 0, 0)),
    Part.LineSegment(Vector(-53, 0, 0), Vector(-53, 52, 0)),
    Part.LineSegment(Vector(-53, 52, 0), Vector(-68, 52, 0)),
], False)
sketch20.addConstraint([
    Sketcher.Constraint("Coincident", 0, 2, 1, 1),
    Sketcher.Constraint("Coincident", 1, 2, 2, 1),
    Sketcher.Constraint("Coincident", 2, 2, 3, 1),
    Sketcher.Constraint("Coincident", 3, 2, 0, 1),
    Sketcher.Constraint("Vertical", 0),
    Sketcher.Constraint("Horizontal", 1),
    Sketcher.Constraint("Vertical", 2),
    Sketcher.Constraint("Horizontal", 3),
    Sketcher.Constraint("PointOnObject", 0, 2, -1),
    Sketcher.Constraint("DistanceX", 1, 1, 1, 2, Q("15.03114 mm")),
    Sketcher.Constraint("DistanceY", 0, 2, 0, 1, Q("52.322618 mm")),
    Sketcher.Constraint("DistanceX", 1, 2, -1, 1, Q("53.062262 mm")),
])
pocket19 = body.newObject("PartDesign::Pocket", "Pocket018")
pocket19.Profile = sketch20
pocket19.Type = "UpToFirst"

# Sketch on XY plane
sketch21 = body.newObject("Sketcher::SketchObject", "Sketch020")
sketch21.AttachmentSupport = (doc.getObject("XY_Plane"), [""])
sketch21.MapMode = "FlatFace"
sketch21.AttachmentOffset = App.Placement(Vector(0, 0, 3), App.Rotation())
sketch21.addGeometry([
    Part.Circle(Vector(-69.3, 120.9, 0), Vector(0, 0, 1), 1.8),
    Part.Circle(Vector(-69.3, 84.2, 0), Vector(0, 0, 1), 1.8),
    Part.Circle(Vector(-31.8, 84.2, 0), Vector(0, 0, 1), 1.8),
    Part.Circle(Vector(-31.8, 120.9, 0), Vector(0, 0, 1), 1.8),
], False)
sketch21.addConstraint([
    Sketcher.Constraint("Equal", 0, 1),
    Sketcher.Constraint("Equal", 1, 2),
    Sketcher.Constraint("Equal", 2, 3),
    Sketcher.Constraint("Horizontal", 1, 3, 2, 3),
    Sketcher.Constraint("Horizontal", 0, 3, 3, 3),
    Sketcher.Constraint("Vertical", 0, 3, 1, 3),
    Sketcher.Constraint("Vertical", 2, 3, 3, 3),
    Sketcher.Constraint("Diameter", 0, Q("3.5 mm")),
    Sketcher.Constraint("DistanceY", -1, 1, 0, 3, Q("120.947399 mm")),
    Sketcher.Constraint("DistanceY", -1, 1, 1, 3, Q("84.205598 mm")),
    Sketcher.Constraint("DistanceX", 0, 3, -1, 1, Q("69.262539 mm")),
    Sketcher.Constraint("DistanceX", 2, 3, -1, 1, Q("31.776164 mm")),
])
sketch21.setExpression("Constraints[7]", "Params.sketch21_diameter")
pocket20 = body.newObject("PartDesign::Pocket", "Pocket019")
pocket20.Profile = sketch21
pocket20.setExpression("Length", "Params.pocket20_length")

# Sketch on XY plane
sketch22 = body.newObject("Sketcher::SketchObject", "Sketch021")
sketch22.AttachmentSupport = (doc.getObject("XY_Plane"), [""])
sketch22.MapMode = "FlatFace"
sketch22.AttachmentOffset = App.Placement(Vector(0, 0, 3), App.Rotation())
sketch22.addGeometry([
    Part.LineSegment(Vector(-181.7, 59.7, 0), Vector(-181.7, 56.7, 0)),  # 0
    Part.LineSegment(Vector(-181.7, 56.7, 0), Vector(-171.7, 56.7, 0)),  # 1
    Part.LineSegment(Vector(-171.7, 56.7, 0), Vector(-171.7, 59.7, 0)),  # 2
    Part.LineSegment(Vector(-171.7, 59.7, 0), Vector(-181.7, 59.7, 0)),  # 3
    Part.LineSegment(Vector(-189.7, 110.7, 0), Vector(-189.7, 80.7, 0)),  # 4
    Part.LineSegment(Vector(-189.7, 80.7, 0), Vector(-186.7, 80.7, 0)),  # 5
    Part.LineSegment(Vector(-186.7, 80.7, 0), Vector(-186.7, 110.7, 0)),  # 6
    Part.LineSegment(Vector(-186.7, 110.7, 0), Vector(-189.7, 110.7, 0)),  # 7
    Part.LineSegment(Vector(-161.7, 59.7, 0), Vector(-161.7, 56.7, 0)),  # 8
    Part.LineSegment(Vector(-161.7, 56.7, 0), Vector(-151.7, 56.7, 0)),  # 9
    Part.LineSegment(Vector(-151.7, 56.7, 0), Vector(-151.7, 59.7, 0)),  # 10
    Part.LineSegment(Vector(-151.7, 59.7, 0), Vector(-161.7, 59.7, 0)),  # 11
    Part.LineSegment(Vector(-146.7, 110.7, 0), Vector(-146.7, 80.7, 0)),  # 12
    Part.LineSegment(Vector(-146.7, 80.7, 0), Vector(-143.7, 80.7, 0)),  # 13
    Part.LineSegment(Vector(-143.7, 80.7, 0), Vector(-143.7, 110.7, 0)),  # 14
    Part.LineSegment(Vector(-143.7, 110.7, 0), Vector(-146.7, 110.7, 0)),  # 15
    Part.LineSegment(Vector(-189.7, 188.7, 0), Vector(-189.7, 158.7, 0)),  # 16
    Part.LineSegment(Vector(-189.7, 158.7, 0), Vector(-186.7, 158.7, 0)),  # 17
    Part.LineSegment(Vector(-186.7, 158.7, 0), Vector(-186.7, 188.7, 0)),  # 18
    Part.LineSegment(Vector(-186.7, 188.7, 0), Vector(-189.7, 188.7, 0)),  # 19
    Part.LineSegment(Vector(-161.7, 212.7, 0), Vector(-161.7, 209.7, 0)),  # 20
    Part.LineSegment(Vector(-161.7, 209.7, 0), Vector(-151.7, 209.7, 0)),  # 21
    Part.LineSegment(Vector(-151.7, 209.7, 0), Vector(-151.7, 212.7, 0)),  # 22
    Part.LineSegment(Vector(-151.7, 212.7, 0), Vector(-161.7, 212.7, 0)),  # 23
    Part.LineSegment(Vector(-181.7, 212.7, 0), Vector(-181.7, 209.7, 0)),  # 24
    Part.LineSegment(Vector(-181.7, 209.7, 0), Vector(-171.7, 209.7, 0)),  # 25
    Part.LineSegment(Vector(-171.7, 209.7, 0), Vector(-171.7, 212.7, 0)),  # 26
    Part.LineSegment(Vector(-171.7, 212.7, 0), Vector(-181.7, 212.7, 0)),  # 27
    Part.LineSegment(Vector(-146.7, 188.7, 0), Vector(-146.7, 158.7, 0)),  # 28
    Part.LineSegment(Vector(-146.7, 158.7, 0), Vector(-143.7, 158.7, 0)),  # 29
    Part.LineSegment(Vector(-143.7, 158.7, 0), Vector(-143.7, 188.7, 0)),  # 30
    Part.LineSegment(Vector(-143.7, 188.7, 0), Vector(-146.7, 188.7, 0)),  # 31
], False)
sketch22.addConstraint([
    Sketcher.Constraint("Coincident", 0, 2, 1, 1),
    Sketcher.Constraint("Coincident", 1, 2, 2, 1),
    Sketcher.Constraint("Coincident", 2, 2, 3, 1),
    Sketcher.Constraint("Coincident", 3, 2, 0, 1),
    Sketcher.Constraint("Coincident", 4, 2, 5, 1),
    Sketcher.Constraint("Coincident", 5, 2, 6, 1),
    Sketcher.Constraint("Coincident", 6, 2, 7, 1),
    Sketcher.Constraint("Coincident", 7, 2, 4, 1),
    Sketcher.Constraint("Coincident", 8, 2, 9, 1),
    Sketcher.Constraint("Coincident", 9, 2, 10, 1),
    Sketcher.Constraint("Coincident", 10, 2, 11, 1),
    Sketcher.Constraint("Coincident", 11, 2, 8, 1),
    Sketcher.Constraint("Coincident", 12, 2, 13, 1),
    Sketcher.Constraint("Coincident", 13, 2, 14, 1),
    Sketcher.Constraint("Coincident", 14, 2, 15, 1),
    Sketcher.Constraint("Coincident", 15, 2, 12, 1),
    Sketcher.Constraint("Coincident", 16, 2, 17, 1),
    Sketcher.Constraint("Coincident", 17, 2, 18, 1),
    Sketcher.Constraint("Coincident", 18, 2, 19, 1),
    Sketcher.Constraint("Coincident", 19, 2, 16, 1),
    Sketcher.Constraint("Coincident", 20, 2, 21, 1),
    Sketcher.Constraint("Coincident", 21, 2, 22, 1),
    Sketcher.Constraint("Coincident", 22, 2, 23, 1),
    Sketcher.Constraint("Coincident", 23, 2, 20, 1),
    Sketcher.Constraint("Coincident", 24, 2, 25, 1),
    Sketcher.Constraint("Coincident", 25, 2, 26, 1),
    Sketcher.Constraint("Coincident", 26, 2, 27, 1),
    Sketcher.Constraint("Coincident", 27, 2, 24, 1),
    Sketcher.Constraint("Coincident", 28, 2, 29, 1),
    Sketcher.Constraint("Coincident", 29, 2, 30, 1),
    Sketcher.Constraint("Coincident", 30, 2, 31, 1),
    Sketcher.Constraint("Coincident", 31, 2, 28, 1),
    Sketcher.Constraint("Vertical", 0),
    Sketcher.Constraint("Horizontal", 1),
    Sketcher.Constraint("Vertical", 2),
    Sketcher.Constraint("Horizontal", 3),
    Sketcher.Constraint("Vertical", 4),
    Sketcher.Constraint("Horizontal", 5),
    Sketcher.Constraint("Vertical", 6),
    Sketcher.Constraint("Horizontal", 7),
    Sketcher.Constraint("Vertical", 8),
    Sketcher.Constraint("Horizontal", 9),
    Sketcher.Constraint("Vertical", 10),
    Sketcher.Constraint("Horizontal", 11),
    Sketcher.Constraint("Vertical", 12),
    Sketcher.Constraint("Horizontal", 13),
    Sketcher.Constraint("Vertical", 14),
    Sketcher.Constraint("Horizontal", 15),
    Sketcher.Constraint("Vertical", 16),
    Sketcher.Constraint("Horizontal", 17),
    Sketcher.Constraint("Vertical", 18),
    Sketcher.Constraint("Horizontal", 19),
    Sketcher.Constraint("Vertical", 20),
    Sketcher.Constraint("Horizontal", 21),
    Sketcher.Constraint("Vertical", 22),
    Sketcher.Constraint("Horizontal", 23),
    Sketcher.Constraint("Vertical", 24),
    Sketcher.Constraint("Horizontal", 25),
    Sketcher.Constraint("Vertical", 26),
    Sketcher.Constraint("Horizontal", 27),
    Sketcher.Constraint("Vertical", 28),
    Sketcher.Constraint("Horizontal", 29),
    Sketcher.Constraint("Vertical", 30),
    Sketcher.Constraint("Horizontal", 31),
    Sketcher.Constraint("Horizontal", 1, 2, 8, 2),
    Sketcher.Constraint("Horizontal", 3, 2, 10, 2),
    Sketcher.Constraint("Horizontal", 5, 2, 12, 2),
    Sketcher.Constraint("Horizontal", 7, 2, 14, 2),
    Sketcher.Constraint("Horizontal", 21, 2, 24, 2),
    Sketcher.Constraint("Horizontal", 23, 2, 26, 2),
    Sketcher.Constraint("Horizontal", 17, 2, 28, 2),
    Sketcher.Constraint("Horizontal", 19, 2, 30, 2),
    Sketcher.Constraint("Vertical", 7, 2, 16, 2),
    Sketcher.Constraint("Vertical", 6, 2, 17, 2),
    Sketcher.Constraint("Vertical", 11, 2, 20, 2),
    Sketcher.Constraint("Vertical", 10, 2, 21, 2),
    Sketcher.Constraint("Vertical", 3, 2, 24, 2),
    Sketcher.Constraint("Vertical", 2, 2, 25, 2),
    Sketcher.Constraint("Vertical", 15, 2, 28, 2),
    Sketcher.Constraint("Vertical", 14, 2, 29, 2),
    Sketcher.Constraint("Equal", 3, 9),
    Sketcher.Constraint("Equal", 7, 13),
    Sketcher.Constraint("Equal", 31, 0),
    Sketcher.Constraint("Equal", 14, 16),
    Sketcher.Constraint("Equal", 10, 20),
    Sketcher.Constraint("DistanceX", 1, 1, 1, 2, Q("10 mm")),
    Sketcher.Constraint("DistanceX", 5, 1, 5, 2, Q("3 mm")),
    Sketcher.Constraint("DistanceY", 4, 2, 4, 1, Q("30 mm")),
    Sketcher.Constraint("DistanceX", 4, 2, 3, 2, Q("8 mm")),
    Sketcher.Constraint("DistanceY", 3, 2, 4, 2, Q("21 mm")),
    Sketcher.Constraint("DistanceX", 1, 2, 8, 2, Q("10 mm")),
    Sketcher.Constraint("DistanceX", 10, 2, 12, 2, Q("5 mm")),
    Sketcher.Constraint("DistanceY", 7, 2, 16, 2, Q("48 mm")),
    Sketcher.Constraint("DistanceY", 18, 2, 20, 2, Q("21 mm")),
    Sketcher.Constraint("DistanceX", 0, 2, -1, 1, Q("181.748737 mm")),
    Sketcher.Constraint("DistanceY", -1, 1, 0, 2, Q("56.748737 mm")),
])
sketch22.setExpression("Constraints[85]", "Params.sketch22_width")
sketch22.setExpression("Constraints[86]", "Params.sketch22_width2")
sketch22.setExpression("Constraints[87]", "Params.sketch22_height")
pocket21 = body.newObject("PartDesign::Pocket", "Pocket020")
pocket21.Profile = sketch22
pocket21.setExpression("Length", "Params.pocket21_length")

doc.recompute()
